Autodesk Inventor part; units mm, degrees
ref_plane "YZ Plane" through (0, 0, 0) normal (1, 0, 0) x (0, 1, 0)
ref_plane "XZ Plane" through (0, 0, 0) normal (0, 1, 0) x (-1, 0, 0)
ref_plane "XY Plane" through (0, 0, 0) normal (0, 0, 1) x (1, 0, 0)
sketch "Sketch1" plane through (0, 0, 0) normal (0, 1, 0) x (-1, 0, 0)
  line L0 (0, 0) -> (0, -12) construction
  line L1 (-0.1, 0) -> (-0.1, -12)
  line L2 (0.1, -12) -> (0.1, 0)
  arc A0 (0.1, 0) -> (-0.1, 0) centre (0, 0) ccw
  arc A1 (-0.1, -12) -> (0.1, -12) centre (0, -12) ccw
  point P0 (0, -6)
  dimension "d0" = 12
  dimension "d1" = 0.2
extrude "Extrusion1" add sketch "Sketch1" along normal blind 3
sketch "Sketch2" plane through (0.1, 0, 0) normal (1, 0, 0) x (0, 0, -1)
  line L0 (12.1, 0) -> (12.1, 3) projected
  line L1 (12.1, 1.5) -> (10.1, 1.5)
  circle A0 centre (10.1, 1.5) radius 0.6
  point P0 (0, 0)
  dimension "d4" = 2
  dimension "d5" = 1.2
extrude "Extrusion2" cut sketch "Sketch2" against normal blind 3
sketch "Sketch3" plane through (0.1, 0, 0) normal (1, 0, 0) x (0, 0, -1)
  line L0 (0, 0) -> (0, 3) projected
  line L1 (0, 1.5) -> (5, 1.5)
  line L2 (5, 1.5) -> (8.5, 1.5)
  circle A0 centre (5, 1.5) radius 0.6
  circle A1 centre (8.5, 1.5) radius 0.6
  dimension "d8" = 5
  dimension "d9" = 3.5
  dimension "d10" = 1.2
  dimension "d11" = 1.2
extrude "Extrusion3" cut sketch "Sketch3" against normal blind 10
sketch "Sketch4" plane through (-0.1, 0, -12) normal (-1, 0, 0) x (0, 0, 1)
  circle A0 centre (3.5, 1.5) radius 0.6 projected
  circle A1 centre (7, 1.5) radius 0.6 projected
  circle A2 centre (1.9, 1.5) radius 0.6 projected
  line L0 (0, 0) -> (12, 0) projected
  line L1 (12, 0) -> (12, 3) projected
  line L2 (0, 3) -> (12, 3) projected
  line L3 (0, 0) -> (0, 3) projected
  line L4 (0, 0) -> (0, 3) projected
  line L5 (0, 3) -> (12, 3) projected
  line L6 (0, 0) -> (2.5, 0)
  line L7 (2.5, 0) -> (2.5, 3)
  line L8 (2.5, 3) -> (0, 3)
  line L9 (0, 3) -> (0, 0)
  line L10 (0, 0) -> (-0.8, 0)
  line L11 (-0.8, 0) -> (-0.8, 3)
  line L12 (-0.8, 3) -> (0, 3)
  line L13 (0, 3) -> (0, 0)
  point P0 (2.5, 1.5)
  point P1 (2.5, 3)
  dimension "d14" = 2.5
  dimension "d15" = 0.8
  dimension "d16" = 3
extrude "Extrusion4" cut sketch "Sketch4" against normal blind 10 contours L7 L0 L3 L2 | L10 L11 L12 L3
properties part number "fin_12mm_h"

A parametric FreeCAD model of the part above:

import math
import FreeCAD as App
import Part
import Sketcher

doc = App.newDocument("Part")
body = doc.addObject("PartDesign::Body", "Body")

sketch1 = body.newObject("Sketcher::SketchObject", "Sketch")
sketch1.AttachmentSupport = (doc.getObject("XZ_Plane"), [""])
sketch1.MapMode = "FlatFace"
sketch1.addGeometry([
    Part.ArcOfCircle(Part.Circle(App.Vector(0, 0, 0), App.Vector(0, 0, 1), 0.1), math.radians(0), math.radians(180)),
    Part.LineSegment(App.Vector(0.1, 0, 0), App.Vector(0.1, -12, 0)),
    Part.ArcOfCircle(Part.Circle(App.Vector(0, -12, 0), App.Vector(0, 0, 1), 0.1), math.radians(180), math.radians(360)),
    Part.LineSegment(App.Vector(-0.1, -12, 0), App.Vector(-0.1, 0, 0)),
], False)
sketch1.addConstraint([
    Sketcher.Constraint("Tangent", 0, 1, 1, 1),
    Sketcher.Constraint("Tangent", 1, 2, 2, 2),
    Sketcher.Constraint("Tangent", 2, 1, 3, 1),
    Sketcher.Constraint("Tangent", 3, 2, 0, 2),
    Sketcher.Constraint("Vertical", 1),
    Sketcher.Constraint("Vertical", 3),
    Sketcher.Constraint("Coincident", 0, 3, -1, 1),
    Sketcher.Constraint("Radius", 0, 0.1),
    Sketcher.Constraint("DistanceY", 1, 2, 1, 1, 12.0),
])
pad1 = body.newObject("PartDesign::Pad", "Pad")
pad1.Profile = sketch1
pad1.Length = 3
pad1.Reversed = True

sketch2 = body.newObject("Sketcher::SketchObject", "Sketch001")
sketch2.AttachmentSupport = (doc.getObject("YZ_Plane"), [""])
sketch2.MapMode = "FlatFace"
sketch2.AttachmentOffset = App.Placement(App.Vector(0, 0, 0.1), App.Rotation())
sketch2.addGeometry(Part.Circle(App.Vector(1.5, -10.1, 0), App.Vector(0, 0, 1), 0.6), False)
sketch2.addConstraint([
    Sketcher.Constraint("Diameter", 0, 1.2),
    Sketcher.Constraint("DistanceX", -1, 1, 0, 3, 1.5),
    Sketcher.Constraint("DistanceY", 0, 3, -1, 1, 10.1),
])
pocket1 = body.newObject("PartDesign::Pocket", "Pocket")
pocket1.Profile = sketch2
pocket1.Length = 3

sketch3 = body.newObject("Sketcher::SketchObject", "Sketch002")
sketch3.AttachmentSupport = (doc.getObject("YZ_Plane"), [""])
sketch3.MapMode = "FlatFace"
sketch3.AttachmentOffset = App.Placement(App.Vector(0, 0, 0.1), App.Rotation())
sketch3.addGeometry([
    Part.Circle(App.Vector(1.5, -5, 0), App.Vector(0, 0, 1), 0.6),
    Part.Circle(App.Vector(1.5, -8.5, 0), App.Vector(0, 0, 1), 0.6),
], False)
sketch3.addConstraint([
    Sketcher.Constraint("Equal", 0, 1),
    Sketcher.Constraint("Vertical", 0, 3, 1, 3),
    Sketcher.Constraint("Diameter", 0, 1.2),
    Sketcher.Constraint("DistanceY", 0, 3, -1, 1, 5.0),
    Sketcher.Constraint("DistanceY", 1, 3, 0, 3, 3.5),
    Sketcher.Constraint("DistanceX", -1, 1, 0, 3, 1.5),
])
pocket2 = body.newObject("PartDesign::Pocket", "Pocket001")
pocket2.Profile = sketch3
pocket2.Length = 10

sketch4 = body.newObject("Sketcher::SketchObject", "Sketch003")
sketch4.AttachmentSupport = (doc.getObject("YZ_Plane"), [""])
sketch4.MapMode = "FlatFace"
sketch4.AttachmentOffset = App.Placement(App.Vector(0, 0, -0.1), App.Rotation())
sketch4.addGeometry([
    Part.LineSegment(App.Vector(1.5, -9.5, 0), App.Vector(3, -9.5, 0)),
    Part.LineSegment(App.Vector(3, -9.5, 0), App.Vector(3, -12.8, 0)),
    Part.LineSegment(App.Vector(3, -12.8, 0), App.Vector(0, -12.8, 0)),
    Part.LineSegment(App.Vector(0, -12.8, 0), App.Vector(0, -9.5, 0)),
    Part.LineSegment(App.Vector(0, -9.5, 0), App.Vector(1.5, -9.5, 0)),
    Part.Circle(App.Vector(1.5, -10.1, 0), App.Vector(0, 0, 1), 0.6),
], False)
sketch4.addConstraint([
    Sketcher.Constraint("Coincident", 0, 2, 1, 1),
    Sketcher.Constraint("Coincident", 1, 2, 2, 1),
    Sketcher.Constraint("Coincident", 2, 2, 3, 1),
    Sketcher.Constraint("Coincident", 3, 2, 4, 1),
    Sketcher.Constraint("Coincident", 4, 2, 0, 1),
    Sketcher.Constraint("Horizontal", 0),
    Sketcher.Constraint("Vertical", 1),
    Sketcher.Constraint("Horizontal", 2),
    Sketcher.Constraint("Vertical", 3),
    Sketcher.Constraint("Horizontal", 4),
    Sketcher.Constraint("PointOnObject", 2, 2, -2),
    Sketcher.Constraint("Vertical", 5, 3, 4, 2),
    Sketcher.Constraint("Equal", 0, 4),
    Sketcher.Constraint("DistanceX", 2, 2, 2, 1, 3.0),
    Sketcher.Constraint("Diameter", 5, 1.2),
    Sketcher.Constraint("DistanceY", 1, 2, 1, 1, 3.3),
    Sketcher.Constraint("DistanceY", 5, 3, -1, 1, 10.1),
    Sketcher.Constraint("DistanceY", 0, 2, -1, 1, 9.5),
])
pocket3 = body.newObject("PartDesign::Pocket", "Pocket002")
pocket3.Profile = sketch4
pocket3.Length = 10
pocket3.Reversed = True

doc.recompute()
